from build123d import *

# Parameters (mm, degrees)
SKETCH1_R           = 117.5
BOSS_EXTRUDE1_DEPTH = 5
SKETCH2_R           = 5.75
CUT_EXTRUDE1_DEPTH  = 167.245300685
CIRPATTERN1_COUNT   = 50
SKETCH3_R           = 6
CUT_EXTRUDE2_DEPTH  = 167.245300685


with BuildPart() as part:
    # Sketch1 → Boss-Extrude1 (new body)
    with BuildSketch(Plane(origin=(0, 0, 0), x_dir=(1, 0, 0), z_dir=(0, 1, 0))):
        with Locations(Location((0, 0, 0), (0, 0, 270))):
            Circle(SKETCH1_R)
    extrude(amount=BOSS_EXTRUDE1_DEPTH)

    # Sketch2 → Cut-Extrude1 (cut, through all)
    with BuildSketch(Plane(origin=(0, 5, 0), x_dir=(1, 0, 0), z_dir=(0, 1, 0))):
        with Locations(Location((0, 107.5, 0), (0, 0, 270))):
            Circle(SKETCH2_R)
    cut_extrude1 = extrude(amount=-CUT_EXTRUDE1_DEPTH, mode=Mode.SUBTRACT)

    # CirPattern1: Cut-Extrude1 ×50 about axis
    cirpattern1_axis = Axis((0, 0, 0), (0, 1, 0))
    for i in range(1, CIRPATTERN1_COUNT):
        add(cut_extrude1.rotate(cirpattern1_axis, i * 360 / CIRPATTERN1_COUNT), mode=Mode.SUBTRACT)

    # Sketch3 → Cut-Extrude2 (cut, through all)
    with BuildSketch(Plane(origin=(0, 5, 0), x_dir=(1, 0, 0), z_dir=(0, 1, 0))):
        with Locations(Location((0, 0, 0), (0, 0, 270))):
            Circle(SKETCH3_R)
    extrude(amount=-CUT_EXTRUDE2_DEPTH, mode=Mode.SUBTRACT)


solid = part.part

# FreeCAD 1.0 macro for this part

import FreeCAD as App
import Part
import Sketcher

V = App.Vector

doc = App.newDocument("Part")
body = doc.addObject("PartDesign::Body", "Body")

# Sketch on XZ plane
sketch1 = doc.addObject("Sketcher::SketchObject", "Sketch")
body.addObject(sketch1)
sketch1.AttachmentSupport = (doc.XZ_Plane, [""])
sketch1.MapMode = "FlatFace"
sketch1.addGeometry(Part.Circle(V(0, 0, 0), V(0, 0, 1), 117.5), False)
sketch1.addConstraint(Sketcher.Constraint("Coincident", 0, 3, -1, 1))
sketch1.addConstraint(Sketcher.Constraint("Diameter", 0, 235.0))
pad1 = doc.addObject("PartDesign::Pad", "Pad")
body.addObject(pad1)
pad1.Profile = sketch1
pad1.Length = 5
pad1.Reversed = True

# Sketch on XZ plane
sketch2 = doc.addObject("Sketcher::SketchObject", "Sketch001")
body.addObject(sketch2)
sketch2.AttachmentSupport = (doc.XZ_Plane, [""])
sketch2.MapMode = "FlatFace"
sketch2.AttachmentOffset = App.Placement(V(0, 0, -5), App.Rotation())
sketch2.addGeometry(Part.Circle(V(0, -107.5, 0), V(0, 0, 1), 5.75), False)
sketch2.addConstraint(Sketcher.Constraint("PointOnObject", 0, 3, -2))
sketch2.addConstraint(Sketcher.Constraint("Diameter", 0, 11.5))
sketch2.addConstraint(Sketcher.Constraint("DistanceY", 0, 3, -1, 1, 107.5))
pocket1 = doc.addObject("PartDesign::Pocket", "Pocket")
body.addObject(pocket1)
pocket1.Profile = sketch2
pocket1.Type = "ThroughAll"
pocket1.Reversed = True
doc.recompute()

polarpattern = doc.addObject("PartDesign::PolarPattern", "PolarPattern")
body.addObject(polarpattern)
polarpattern.Originals = [pocket1]
polarpattern.Axis = (doc.Y_Axis, [""])
polarpattern.Angle = 360
polarpattern.Occurrences = 50
body.Tip = polarpattern

# Sketch on XZ plane
sketch3 = doc.addObject("Sketcher::SketchObject", "Sketch002")
body.addObject(sketch3)
sketch3.AttachmentSupport = (doc.XZ_Plane, [""])
sketch3.MapMode = "FlatFace"
sketch3.AttachmentOffset = App.Placement(V(0, 0, -5), App.Rotation())
sketch3.addGeometry(Part.Circle(V(0, 0, 0), V(0, 0, 1), 6), False)
sketch3.addConstraint(Sketcher.Constraint("Coincident", 0, 3, -1, 1))
sketch3.addConstraint(Sketcher.Constraint("Diameter", 0, 12.0))
pocket2 = doc.addObject("PartDesign::Pocket", "Pocket001")
body.addObject(pocket2)
pocket2.Profile = sketch3
pocket2.Type = "ThroughAll"
pocket2.Reversed = True

doc.recompute()
